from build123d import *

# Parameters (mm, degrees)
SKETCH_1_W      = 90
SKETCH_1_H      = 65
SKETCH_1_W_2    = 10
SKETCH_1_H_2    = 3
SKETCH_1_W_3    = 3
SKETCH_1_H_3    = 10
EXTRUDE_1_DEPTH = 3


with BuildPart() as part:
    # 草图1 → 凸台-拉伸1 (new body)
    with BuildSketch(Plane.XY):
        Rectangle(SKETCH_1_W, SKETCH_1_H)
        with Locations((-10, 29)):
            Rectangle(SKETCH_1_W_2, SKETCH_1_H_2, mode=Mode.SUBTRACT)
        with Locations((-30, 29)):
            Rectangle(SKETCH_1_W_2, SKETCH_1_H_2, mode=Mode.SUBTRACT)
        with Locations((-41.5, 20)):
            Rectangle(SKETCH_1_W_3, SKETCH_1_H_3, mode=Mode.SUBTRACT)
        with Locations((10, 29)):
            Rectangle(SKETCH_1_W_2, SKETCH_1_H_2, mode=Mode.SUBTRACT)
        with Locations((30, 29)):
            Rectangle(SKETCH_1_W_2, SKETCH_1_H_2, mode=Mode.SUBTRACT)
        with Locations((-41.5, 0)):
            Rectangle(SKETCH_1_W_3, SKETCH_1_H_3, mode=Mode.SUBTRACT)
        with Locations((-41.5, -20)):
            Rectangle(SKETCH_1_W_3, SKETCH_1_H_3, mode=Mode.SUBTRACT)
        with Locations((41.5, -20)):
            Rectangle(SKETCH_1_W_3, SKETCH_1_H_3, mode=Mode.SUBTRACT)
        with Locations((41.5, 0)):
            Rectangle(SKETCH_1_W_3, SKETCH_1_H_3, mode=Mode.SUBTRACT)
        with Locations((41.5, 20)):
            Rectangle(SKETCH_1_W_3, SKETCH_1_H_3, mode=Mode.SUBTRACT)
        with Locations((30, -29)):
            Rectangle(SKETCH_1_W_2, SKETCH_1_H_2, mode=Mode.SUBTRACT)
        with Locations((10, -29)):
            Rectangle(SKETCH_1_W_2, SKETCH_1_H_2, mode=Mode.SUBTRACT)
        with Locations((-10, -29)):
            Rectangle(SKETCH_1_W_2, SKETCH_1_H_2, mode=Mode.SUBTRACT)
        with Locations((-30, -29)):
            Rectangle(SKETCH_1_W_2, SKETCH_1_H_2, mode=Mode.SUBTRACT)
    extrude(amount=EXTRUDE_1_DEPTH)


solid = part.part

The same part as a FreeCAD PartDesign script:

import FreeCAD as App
import Part
import Sketcher
from FreeCAD import Vector
Q = App.Units.Quantity


def add_polygon(sketch, points):
    """Adds a closed chain of lines whose ends are joined by coincident constraints."""
    first, n = sketch.GeometryCount, len(points)
    for a, b in zip(points, points[1:] + points[:1]):
        sketch.addGeometry(Part.LineSegment(App.Vector(*a, 0), App.Vector(*b, 0)), False)
    for i in range(n):
        sketch.addConstraint(Sketcher.Constraint("Coincident", first + i, 2, first + (i + 1) % n, 1))

doc = App.newDocument("Part")
params = doc.addObject("Spreadsheet::Sheet", "Params")
for row, (alias, value) in enumerate([
    ("sketch1_width", "90 mm"),
    ("sketch1_width2", "10 mm"),
    ("sketch1_width3", "3 mm"),
    ("sketch1_height", "65 mm"),
    ("pad1_length", "3 mm"),
], start=1):
    params.set(f"A{row}", alias)
    params.set(f"B{row}", "=" + value)
    params.setAlias(f"B{row}", alias)

body = doc.addObject("PartDesign::Body", "Body")

# Sketch on XY plane
sketch1 = body.newObject("Sketcher::SketchObject", "Sketch")
sketch1.AttachmentSupport = (doc.getObject("XY_Plane"), [""])
sketch1.MapMode = "FlatFace"
add_polygon(sketch1, [(-45, 32.5), (-45, -32.5), (45, -32.5), (45, 32.5)])  # lines 0-3
add_polygon(sketch1, [(-25, -30.5), (-35, -30.5), (-35, -27.5), (-25, -27.5)])  # lines 4-7
add_polygon(sketch1, [(-40, -25), (-43, -25), (-43, -15), (-40, -15)])  # lines 8-11
add_polygon(sketch1, [(-5, -30.5), (-15, -30.5), (-15, -27.5), (-5, -27.5)])  # lines 12-15
add_polygon(sketch1, [(15, -30.5), (5, -30.5), (5, -27.5), (15, -27.5)])  # lines 16-19
add_polygon(sketch1, [(35, -30.5), (25, -30.5), (25, -27.5), (35, -27.5)])  # lines 20-23
add_polygon(sketch1, [(43, -25), (40, -25), (40, -15), (43, -15)])  # lines 24-27
add_polygon(sketch1, [(-40, -5), (-43, -5), (-43, 5), (-40, 5)])  # lines 28-31
add_polygon(sketch1, [(-40, 15), (-43, 15), (-43, 25), (-40, 25)])  # lines 32-35
add_polygon(sketch1, [(-25, 27.5), (-35, 27.5), (-35, 30.5), (-25, 30.5)])  # lines 36-39
add_polygon(sketch1, [(-5, 27.5), (-15, 27.5), (-15, 30.5), (-5, 30.5)])  # lines 40-43
add_polygon(sketch1, [(43, -5), (40, -5), (40, 5), (43, 5)])  # lines 44-47
add_polygon(sketch1, [(15, 27.5), (5, 27.5), (5, 30.5), (15, 30.5)])  # lines 48-51
add_polygon(sketch1, [(43, 15), (40, 15), (40, 25), (43, 25)])  # lines 52-55
add_polygon(sketch1, [(35, 27.5), (25, 27.5), (25, 30.5), (35, 30.5)])  # lines 56-59
sketch1.addConstraint([
    Sketcher.Constraint("Vertical", 0),
    Sketcher.Constraint("Horizontal", 1),
    Sketcher.Constraint("Vertical", 2),
    Sketcher.Constraint("Horizontal", 3),
    Sketcher.Constraint("Horizontal", 4),
    Sketcher.Constraint("Vertical", 5),
    Sketcher.Constraint("Horizontal", 6),
    Sketcher.Constraint("Vertical", 7),
    Sketcher.Constraint("Horizontal", 8),
    Sketcher.Constraint("Vertical", 9),
    Sketcher.Constraint("Horizontal", 10),
    Sketcher.Constraint("Vertical", 11),
    Sketcher.Constraint("Horizontal", 12),
    Sketcher.Constraint("Vertical", 13),
    Sketcher.Constraint("Horizontal", 14),
    Sketcher.Constraint("Vertical", 15),
    Sketcher.Constraint("Horizontal", 16),
    Sketcher.Constraint("Vertical", 17),
    Sketcher.Constraint("Horizontal", 18),
    Sketcher.Constraint("Vertical", 19),
    Sketcher.Constraint("Horizontal", 20),
    Sketcher.Constraint("Vertical", 21),
    Sketcher.Constraint("Horizontal", 22),
    Sketcher.Constraint("Vertical", 23),
    Sketcher.Constraint("Horizontal", 24),
    Sketcher.Constraint("Vertical", 25),
    Sketcher.Constraint("Horizontal", 26),
    Sketcher.Constraint("Vertical", 27),
    Sketcher.Constraint("Horizontal", 28),
    Sketcher.Constraint("Vertical", 29),
    Sketcher.Constraint("Horizontal", 30),
    Sketcher.Constraint("Vertical", 31),
    Sketcher.Constraint("Horizontal", 32),
    Sketcher.Constraint("Vertical", 33),
    Sketcher.Constraint("Horizontal", 34),
    Sketcher.Constraint("Vertical", 35),
    Sketcher.Constraint("Horizontal", 36),
    Sketcher.Constraint("Vertical", 37),
    Sketcher.Constraint("Horizontal", 38),
    Sketcher.Constraint("Vertical", 39),
    Sketcher.Constraint("Horizontal", 40),
    Sketcher.Constraint("Vertical", 41),
    Sketcher.Constraint("Horizontal", 42),
    Sketcher.Constraint("Vertical", 43),
    Sketcher.Constraint("Horizontal", 44),
    Sketcher.Constraint("Vertical", 45),
    Sketcher.Constraint("Horizontal", 46),
    Sketcher.Constraint("Vertical", 47),
    Sketcher.Constraint("Horizontal", 48),
    Sketcher.Constraint("Vertical", 49),
    Sketcher.Constraint("Horizontal", 50),
    Sketcher.Constraint("Vertical", 51),
    Sketcher.Constraint("Horizontal", 52),
    Sketcher.Constraint("Vertical", 53),
    Sketcher.Constraint("Horizontal", 54),
    Sketcher.Constraint("Vertical", 55),
    Sketcher.Constraint("Horizontal", 56),
    Sketcher.Constraint("Vertical", 57),
    Sketcher.Constraint("Horizontal", 58),
    Sketcher.Constraint("Vertical", 59),
    Sketcher.Constraint("Symmetric", 0, 2, 2, 2, -1, 1),
    Sketcher.Constraint("Symmetric", 26, 2, 32, 2, -1, 1),
    Sketcher.Constraint("Symmetric", 24, 2, 34, 2, -1, 1),
    Sketcher.Constraint("Symmetric", 22, 2, 36, 2, -1, 1),
    Sketcher.Constraint("Symmetric", 20, 2, 38, 2, -1, 1),
    Sketcher.Constraint("Symmetric", 18, 2, 40, 2, -1, 1),
    Sketcher.Constraint("Symmetric", 16, 2, 42, 2, -1, 1),
    Sketcher.Constraint("Symmetric", 30, 2, 44, 2, -1, 1),
    Sketcher.Constraint("Symmetric", 28, 2, 46, 2, -1, 1),
    Sketcher.Constraint("Symmetric", 14, 2, 48, 2, -1, 1),
    Sketcher.Constraint("Symmetric", 12, 2, 50, 2, -1, 1),
    Sketcher.Constraint("Symmetric", 10, 2, 52, 2, -1, 1),
    Sketcher.Constraint("Symmetric", 8, 2, 54, 2, -1, 1),
    Sketcher.Constraint("Symmetric", 6, 2, 56, 2, -1, 1),
    Sketcher.Constraint("Symmetric", 4, 2, 58, 2, -1, 1),
    Sketcher.Constraint("Symmetric", 15, 2, 16, 2, -2),
    Sketcher.Constraint("Symmetric", 13, 2, 18, 2, -2),
    Sketcher.Constraint("Symmetric", 7, 2, 20, 2, -2),
    Sketcher.Constraint("Symmetric", 5, 2, 22, 2, -2),
    Sketcher.Constraint("Symmetric", 11, 2, 24, 2, -2),
    Sketcher.Constraint("Symmetric", 9, 2, 26, 2, -2),
    Sketcher.Constraint("Horizontal", 7, 2, 12, 2),
    Sketcher.Constraint("Horizontal", 6, 2, 13, 2),
    Sketcher.Constraint("Horizontal", 31, 2, 44, 2),
    Sketcher.Constraint("Vertical", 9, 2, 28, 2),
    Sketcher.Constraint("Vertical", 11, 2, 30, 2),
    Sketcher.Constraint("Equal", 6, 12),
    Sketcher.Constraint("Equal", 54, 5),
    Sketcher.Constraint("Equal", 58, 9),
    Sketcher.Constraint("Equal", 27, 29),
    Sketcher.Constraint("DistanceX", 1, 1, 1, 2, Q("90 mm")),
    Sketcher.Constraint("DistanceX", 4, 2, 4, 1, Q("10 mm")),
    Sketcher.Constraint("DistanceX", 8, 2, 8, 1, Q("3 mm")),
    Sketcher.Constraint("DistanceY", 0, 2, 0, 1, Q("65 mm")),
    Sketcher.Constraint("DistanceX", 4, 2, -1, 1, Q("35 mm")),
    Sketcher.Constraint("DistanceX", 8, 2, -1, 1, Q("43 mm")),
    Sketcher.Constraint("DistanceY", 8, 2, -1, 1, Q("25 mm")),
    Sketcher.Constraint("DistanceX", 12, 2, -1, 1, Q("15 mm")),
    Sketcher.Constraint("DistanceY", 0, 2, 4, 2, Q("2 mm")),
])
sketch1.setExpression("Constraints[150]", "Params.sketch1_width")
sketch1.setExpression("Constraints[151]", "Params.sketch1_width2")
sketch1.setExpression("Constraints[152]", "Params.sketch1_width3")
sketch1.setExpression("Constraints[153]", "Params.sketch1_height")
pad1 = body.newObject("PartDesign::Pad", "Pad")
pad1.Profile = sketch1
pad1.setExpression("Length", "Params.pad1_length")

doc.recompute()
